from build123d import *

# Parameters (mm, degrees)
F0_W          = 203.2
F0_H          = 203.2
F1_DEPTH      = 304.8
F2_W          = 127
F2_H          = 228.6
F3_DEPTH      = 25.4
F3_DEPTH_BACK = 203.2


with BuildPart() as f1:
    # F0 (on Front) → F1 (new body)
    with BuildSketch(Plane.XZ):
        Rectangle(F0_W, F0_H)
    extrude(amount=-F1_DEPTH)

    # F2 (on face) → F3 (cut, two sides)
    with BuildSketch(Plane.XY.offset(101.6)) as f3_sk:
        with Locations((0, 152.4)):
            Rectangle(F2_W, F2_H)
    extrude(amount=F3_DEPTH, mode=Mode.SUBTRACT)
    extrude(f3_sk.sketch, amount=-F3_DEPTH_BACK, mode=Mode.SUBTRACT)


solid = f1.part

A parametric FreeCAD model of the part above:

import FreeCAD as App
import Part
import Sketcher
Q = App.Units.Quantity

doc = App.newDocument("Part")
params = doc.addObject("Spreadsheet::Sheet", "Params")
for row, (alias, value) in enumerate([
    ("sketch1_width", "8 in"),
    ("pad1_length", "12 in"),
    ("sketch2_width", "5 in"),
    ("sketch2_height", "9 in"),
], start=1):
    params.set(f"A{row}", alias)
    params.set(f"B{row}", "=" + value)
    params.setAlias(f"B{row}", alias)

body = doc.addObject("PartDesign::Body", "Body")

sketch1 = body.newObject("Sketcher::SketchObject", "Sketch")
sketch1.AttachmentSupport = (doc.getObject("XZ_Plane"), [""])
sketch1.MapMode = "FlatFace"
sketch1.addGeometry(Part.LineSegment(App.Vector(-102, 102, 0), App.Vector(-102, -102, 0)), False)
sketch1.addGeometry(Part.LineSegment(App.Vector(-102, -102, 0), App.Vector(102, -102, 0)), False)
sketch1.addGeometry(Part.LineSegment(App.Vector(102, -102, 0), App.Vector(102, 102, 0)), False)
sketch1.addGeometry(Part.LineSegment(App.Vector(102, 102, 0), App.Vector(-102, 102, 0)), False)
sketch1.addConstraint(Sketcher.Constraint("Coincident", 0, 2, 1, 1))
sketch1.addConstraint(Sketcher.Constraint("Coincident", 1, 2, 2, 1))
sketch1.addConstraint(Sketcher.Constraint("Coincident", 2, 2, 3, 1))
sketch1.addConstraint(Sketcher.Constraint("Coincident", 3, 2, 0, 1))
sketch1.addConstraint(Sketcher.Constraint("Vertical", 0))
sketch1.addConstraint(Sketcher.Constraint("Horizontal", 1))
sketch1.addConstraint(Sketcher.Constraint("Vertical", 2))
sketch1.addConstraint(Sketcher.Constraint("Horizontal", 3))
sketch1.addConstraint(Sketcher.Constraint("Symmetric", 0, 2, 2, 2, -1, 1))
sketch1.addConstraint(Sketcher.Constraint("Equal", 3, 0))
sketch1.addConstraint(Sketcher.Constraint("DistanceX", 1, 1, 1, 2, Q("8 in")))
sketch1.setExpression("Constraints[10]", "Params.sketch1_width")
pad1 = body.newObject("PartDesign::Pad", "Pad")
pad1.Profile = sketch1
pad1.setExpression("Length", "Params.pad1_length")
pad1.Reversed = True

sketch2 = body.newObject("Sketcher::SketchObject", "Sketch001")
sketch2.AttachmentSupport = (doc.getObject("XY_Plane"), [""])
sketch2.MapMode = "FlatFace"
sketch2.AttachmentOffset = App.Placement(App.Vector(0, 0, 4 * 25.4), App.Rotation())
sketch2.addGeometry(Part.LineSegment(App.Vector(-64, 267, 0), App.Vector(-64, 38, 0)), False)
sketch2.addGeometry(Part.LineSegment(App.Vector(-64, 38, 0), App.Vector(64, 38, 0)), False)
sketch2.addGeometry(Part.LineSegment(App.Vector(64, 38, 0), App.Vector(64, 267, 0)), False)
sketch2.addGeometry(Part.LineSegment(App.Vector(64, 267, 0), App.Vector(-64, 267, 0)), False)
sketch2.addConstraint(Sketcher.Constraint("Coincident", 0, 2, 1, 1))
sketch2.addConstraint(Sketcher.Constraint("Coincident", 1, 2, 2, 1))
sketch2.addConstraint(Sketcher.Constraint("Coincident", 2, 2, 3, 1))
sketch2.addConstraint(Sketcher.Constraint("Coincident", 3, 2, 0, 1))
sketch2.addConstraint(Sketcher.Constraint("Vertical", 0))
sketch2.addConstraint(Sketcher.Constraint("Horizontal", 1))
sketch2.addConstraint(Sketcher.Constraint("Vertical", 2))
sketch2.addConstraint(Sketcher.Constraint("Horizontal", 3))
sketch2.addConstraint(Sketcher.Constraint("DistanceX", 1, 1, 1, 2, Q("5 in")))
sketch2.addConstraint(Sketcher.Constraint("DistanceY", 0, 2, 0, 1, Q("9 in")))
sketch2.addConstraint(Sketcher.Constraint("DistanceX", 0, 2, -1, 1, Q("2.5 in")))
sketch2.addConstraint(Sketcher.Constraint("DistanceY", -1, 1, 0, 2, Q("1.5 in")))
sketch2.setExpression("Constraints[8]", "Params.sketch2_width")
sketch2.setExpression("Constraints[9]", "Params.sketch2_height")
pocket1 = body.newObject("PartDesign::Pocket", "Pocket")
pocket1.Profile = sketch2
pocket1.Type = "ThroughAll"
pocket1.Midplane = True

doc.recompute()
